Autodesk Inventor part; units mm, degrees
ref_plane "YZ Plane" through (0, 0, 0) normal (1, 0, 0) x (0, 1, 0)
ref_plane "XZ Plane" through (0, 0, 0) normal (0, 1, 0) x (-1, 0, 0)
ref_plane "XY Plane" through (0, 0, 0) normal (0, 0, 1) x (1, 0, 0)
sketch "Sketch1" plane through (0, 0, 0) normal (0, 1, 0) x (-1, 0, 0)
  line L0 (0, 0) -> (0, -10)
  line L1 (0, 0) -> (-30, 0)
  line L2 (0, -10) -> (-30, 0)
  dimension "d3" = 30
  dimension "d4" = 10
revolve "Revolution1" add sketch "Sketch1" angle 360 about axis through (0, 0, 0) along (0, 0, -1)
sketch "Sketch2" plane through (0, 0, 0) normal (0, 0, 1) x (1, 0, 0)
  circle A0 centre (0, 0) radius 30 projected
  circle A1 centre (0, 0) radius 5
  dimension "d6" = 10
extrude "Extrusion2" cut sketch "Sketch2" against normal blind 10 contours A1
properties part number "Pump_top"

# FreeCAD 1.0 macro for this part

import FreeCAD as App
import Part
import Sketcher

V = App.Vector
Q = App.Units.Quantity


def add_polygon(sketch, points):
    """Adds a closed chain of lines whose ends are joined by coincident constraints."""
    first, n = sketch.GeometryCount, len(points)
    for a, b in zip(points, points[1:] + points[:1]):
        sketch.addGeometry(Part.LineSegment(App.Vector(*a, 0), App.Vector(*b, 0)), False)
    for i in range(n):
        sketch.addConstraint(Sketcher.Constraint("Coincident", first + i, 2, first + (i + 1) % n, 1))

doc = App.newDocument("Part")
params = doc.addObject("Spreadsheet::Sheet", "Params")
for row, (alias, value) in enumerate([
    ("revolution_angle", "360 deg"),
    ("pocket1_length", "0.3937008 in"),
], start=1):
    params.set(f"A{row}", alias)
    params.set(f"B{row}", "=" + value)
    params.setAlias(f"B{row}", alias)

body = doc.addObject("PartDesign::Body", "Body")

# Sketch on XZ plane
sketch1 = body.newObject("Sketcher::SketchObject", "Sketch")
sketch1.AttachmentSupport = (doc.getObject("XZ_Plane"), [""])
sketch1.MapMode = "FlatFace"
add_polygon(sketch1, [(0, -10), (0, 0), (30, 0)])  # lines 0-2
sketch1.addConstraint(Sketcher.Constraint("Vertical", 0))
sketch1.addConstraint(Sketcher.Constraint("Horizontal", 1))
sketch1.addConstraint(Sketcher.Constraint("Coincident", 0, 2, -1, 1))
sketch1.addConstraint(Sketcher.Constraint("DistanceX", 1, 1, 1, 2, Q("1.1811 in")))
sketch1.addConstraint(Sketcher.Constraint("DistanceY", 0, 1, 0, 2, Q("0.3937 in")))
revolution = body.newObject("PartDesign::Revolution", "Revolution")
revolution.Profile = sketch1
revolution.ReferenceAxis = (sketch1, ["V_Axis"])
revolution.setExpression("Angle", "Params.revolution_angle")

# Sketch on XY plane
sketch2 = body.newObject("Sketcher::SketchObject", "Sketch001")
sketch2.AttachmentSupport = (doc.getObject("XY_Plane"), [""])
sketch2.MapMode = "FlatFace"
sketch2.addGeometry(Part.Circle(V(0, 0, 0), V(0, 0, 1), 5), False)
sketch2.addConstraint(Sketcher.Constraint("Coincident", 0, 3, -1, 1))
sketch2.addConstraint(Sketcher.Constraint("Diameter", 0, Q("0.3937 in")))
pocket1 = body.newObject("PartDesign::Pocket", "Pocket")
pocket1.Profile = sketch2
pocket1.setExpression("Length", "Params.pocket1_length")

doc.recompute()
